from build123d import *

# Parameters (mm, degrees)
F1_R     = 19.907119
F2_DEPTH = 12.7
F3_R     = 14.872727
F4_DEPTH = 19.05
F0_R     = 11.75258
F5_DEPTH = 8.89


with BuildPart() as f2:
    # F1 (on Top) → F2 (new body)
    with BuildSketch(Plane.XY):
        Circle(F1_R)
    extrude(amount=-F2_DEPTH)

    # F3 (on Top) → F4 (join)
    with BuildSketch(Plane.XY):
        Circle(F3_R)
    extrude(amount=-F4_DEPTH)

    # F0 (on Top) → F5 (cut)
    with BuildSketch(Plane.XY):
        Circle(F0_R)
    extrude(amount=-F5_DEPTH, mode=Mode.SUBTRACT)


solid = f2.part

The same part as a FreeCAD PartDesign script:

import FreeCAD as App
import Part
import Sketcher
from FreeCAD import Vector
Q = App.Units.Quantity

doc = App.newDocument("Part")
body = doc.addObject("PartDesign::Body", "Body")

sketch1 = body.newObject("Sketcher::SketchObject", "Sketch")
sketch1.AttachmentSupport = (doc.getObject("XY_Plane"), [""])
sketch1.MapMode = "FlatFace"
sketch1.addGeometry(Part.Circle(Vector(0, 0, 0), Vector(0, 0, 1), 20), False)
sketch1.addConstraint(Sketcher.Constraint("Coincident", 0, 3, -1, 1))
sketch1.addConstraint(Sketcher.Constraint("Diameter", 0, 39.814238))
pad1 = body.newObject("PartDesign::Pad", "Pad")
pad1.Profile = sketch1
pad1.Length = Q("0.5 in")
pad1.Reversed = True

sketch2 = body.newObject("Sketcher::SketchObject", "Sketch001")
sketch2.AttachmentSupport = (doc.getObject("XY_Plane"), [""])
sketch2.MapMode = "FlatFace"
sketch2.addGeometry(Part.Circle(Vector(0, 0, 0), Vector(0, 0, 1), 15), False)
sketch2.addConstraint(Sketcher.Constraint("Coincident", 0, 3, -1, 1))
sketch2.addConstraint(Sketcher.Constraint("Diameter", 0, 29.745454))
pad2 = body.newObject("PartDesign::Pad", "Pad001")
pad2.Profile = sketch2
pad2.Length = Q("0.75 in")
pad2.Reversed = True

sketch3 = body.newObject("Sketcher::SketchObject", "Sketch002")
sketch3.AttachmentSupport = (doc.getObject("XY_Plane"), [""])
sketch3.MapMode = "FlatFace"
sketch3.addGeometry(Part.Circle(Vector(0, 0, 0), Vector(0, 0, 1), 12), False)
sketch3.addConstraint(Sketcher.Constraint("Coincident", 0, 3, -1, 1))
sketch3.addConstraint(Sketcher.Constraint("Diameter", 0, Q("0.9254 in")))
pocket1 = body.newObject("PartDesign::Pocket", "Pocket")
pocket1.Profile = sketch3
pocket1.Length = Q("0.35 in")

doc.recompute()
